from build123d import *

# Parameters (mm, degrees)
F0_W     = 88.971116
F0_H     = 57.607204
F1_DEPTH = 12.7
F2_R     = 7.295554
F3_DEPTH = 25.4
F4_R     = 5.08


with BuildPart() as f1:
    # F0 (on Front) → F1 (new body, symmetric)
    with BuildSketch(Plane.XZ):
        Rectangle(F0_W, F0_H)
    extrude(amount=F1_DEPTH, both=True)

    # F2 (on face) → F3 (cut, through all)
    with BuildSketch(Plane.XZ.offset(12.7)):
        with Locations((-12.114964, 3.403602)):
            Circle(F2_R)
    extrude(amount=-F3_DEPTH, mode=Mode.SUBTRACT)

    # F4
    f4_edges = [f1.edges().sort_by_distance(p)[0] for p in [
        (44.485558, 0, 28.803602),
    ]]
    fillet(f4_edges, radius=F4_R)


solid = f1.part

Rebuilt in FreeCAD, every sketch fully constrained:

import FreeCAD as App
import Part
import Sketcher

V = App.Vector
Q = App.Units.Quantity


def edges_at(feature, points):
    """Names of the edges that pass closest to the given points."""
    edges = feature.Shape.Edges
    near = lambda p: min(range(len(edges)), key=lambda i: edges[i].distToShape(Part.Vertex(*p))[0])
    return sorted({f"Edge{near(p) + 1}" for p in points})


def add_polygon(sketch, points):
    """Adds a closed chain of lines whose ends are joined by coincident constraints."""
    first, n = sketch.GeometryCount, len(points)
    for a, b in zip(points, points[1:] + points[:1]):
        sketch.addGeometry(Part.LineSegment(App.Vector(*a, 0), App.Vector(*b, 0)), False)
    for i in range(n):
        sketch.addConstraint(Sketcher.Constraint("Coincident", first + i, 2, first + (i + 1) % n, 1))

doc = App.newDocument("Part")
body = doc.addObject("PartDesign::Body", "Body")

# Sketch on XZ plane
sketch1 = body.newObject("Sketcher::SketchObject", "Sketch")
sketch1.AttachmentSupport = (doc.getObject("XZ_Plane"), [""])
sketch1.MapMode = "FlatFace"
add_polygon(sketch1, [(-44, 29), (-44, -29), (44, -29), (44, 29)])  # lines 0-3
sketch1.addConstraint([
    Sketcher.Constraint("Vertical", 0),
    Sketcher.Constraint("Horizontal", 1),
    Sketcher.Constraint("Vertical", 2),
    Sketcher.Constraint("Horizontal", 3),
    Sketcher.Constraint("Symmetric", 0, 2, 2, 2, -1, 1),
    Sketcher.Constraint("DistanceY", 0, 2, 0, 1, Q("2.2680002 in")),
    Sketcher.Constraint("DistanceX", 1, 1, 1, 2, Q("3.5027998 in")),
])
pad1 = body.newObject("PartDesign::Pad", "Pad")
pad1.Profile = sketch1
pad1.Length = Q("1 in")
pad1.Midplane = True

# Sketch on XZ plane
sketch2 = body.newObject("Sketcher::SketchObject", "Sketch001")
sketch2.AttachmentSupport = (doc.getObject("XZ_Plane"), [""])
sketch2.MapMode = "FlatFace"
sketch2.AttachmentOffset = App.Placement(V(0, 0, 0.5 * 25.4), App.Rotation())
sketch2.addGeometry(Part.Circle(V(-12, 3, 0), V(0, 0, 1), 7), False)
sketch2.addConstraint([
    Sketcher.Constraint("DistanceY", -1, 1, 0, 3, Q("0.1340001 in")),
    Sketcher.Constraint("Diameter", 0, 14.591108),
    Sketcher.Constraint("DistanceX", 0, 3, -1, 1, 12.114964),
])
pocket1 = body.newObject("PartDesign::Pocket", "Pocket")
pocket1.Profile = sketch2
pocket1.Type = "ThroughAll"
doc.recompute()

fillet = body.newObject("PartDesign::Fillet", "Fillet")
fillet.Base = (pocket1, edges_at(pocket1, [(44.486, 0, 28.804)]))
fillet.Radius = Q("0.2 in")

doc.recompute()
